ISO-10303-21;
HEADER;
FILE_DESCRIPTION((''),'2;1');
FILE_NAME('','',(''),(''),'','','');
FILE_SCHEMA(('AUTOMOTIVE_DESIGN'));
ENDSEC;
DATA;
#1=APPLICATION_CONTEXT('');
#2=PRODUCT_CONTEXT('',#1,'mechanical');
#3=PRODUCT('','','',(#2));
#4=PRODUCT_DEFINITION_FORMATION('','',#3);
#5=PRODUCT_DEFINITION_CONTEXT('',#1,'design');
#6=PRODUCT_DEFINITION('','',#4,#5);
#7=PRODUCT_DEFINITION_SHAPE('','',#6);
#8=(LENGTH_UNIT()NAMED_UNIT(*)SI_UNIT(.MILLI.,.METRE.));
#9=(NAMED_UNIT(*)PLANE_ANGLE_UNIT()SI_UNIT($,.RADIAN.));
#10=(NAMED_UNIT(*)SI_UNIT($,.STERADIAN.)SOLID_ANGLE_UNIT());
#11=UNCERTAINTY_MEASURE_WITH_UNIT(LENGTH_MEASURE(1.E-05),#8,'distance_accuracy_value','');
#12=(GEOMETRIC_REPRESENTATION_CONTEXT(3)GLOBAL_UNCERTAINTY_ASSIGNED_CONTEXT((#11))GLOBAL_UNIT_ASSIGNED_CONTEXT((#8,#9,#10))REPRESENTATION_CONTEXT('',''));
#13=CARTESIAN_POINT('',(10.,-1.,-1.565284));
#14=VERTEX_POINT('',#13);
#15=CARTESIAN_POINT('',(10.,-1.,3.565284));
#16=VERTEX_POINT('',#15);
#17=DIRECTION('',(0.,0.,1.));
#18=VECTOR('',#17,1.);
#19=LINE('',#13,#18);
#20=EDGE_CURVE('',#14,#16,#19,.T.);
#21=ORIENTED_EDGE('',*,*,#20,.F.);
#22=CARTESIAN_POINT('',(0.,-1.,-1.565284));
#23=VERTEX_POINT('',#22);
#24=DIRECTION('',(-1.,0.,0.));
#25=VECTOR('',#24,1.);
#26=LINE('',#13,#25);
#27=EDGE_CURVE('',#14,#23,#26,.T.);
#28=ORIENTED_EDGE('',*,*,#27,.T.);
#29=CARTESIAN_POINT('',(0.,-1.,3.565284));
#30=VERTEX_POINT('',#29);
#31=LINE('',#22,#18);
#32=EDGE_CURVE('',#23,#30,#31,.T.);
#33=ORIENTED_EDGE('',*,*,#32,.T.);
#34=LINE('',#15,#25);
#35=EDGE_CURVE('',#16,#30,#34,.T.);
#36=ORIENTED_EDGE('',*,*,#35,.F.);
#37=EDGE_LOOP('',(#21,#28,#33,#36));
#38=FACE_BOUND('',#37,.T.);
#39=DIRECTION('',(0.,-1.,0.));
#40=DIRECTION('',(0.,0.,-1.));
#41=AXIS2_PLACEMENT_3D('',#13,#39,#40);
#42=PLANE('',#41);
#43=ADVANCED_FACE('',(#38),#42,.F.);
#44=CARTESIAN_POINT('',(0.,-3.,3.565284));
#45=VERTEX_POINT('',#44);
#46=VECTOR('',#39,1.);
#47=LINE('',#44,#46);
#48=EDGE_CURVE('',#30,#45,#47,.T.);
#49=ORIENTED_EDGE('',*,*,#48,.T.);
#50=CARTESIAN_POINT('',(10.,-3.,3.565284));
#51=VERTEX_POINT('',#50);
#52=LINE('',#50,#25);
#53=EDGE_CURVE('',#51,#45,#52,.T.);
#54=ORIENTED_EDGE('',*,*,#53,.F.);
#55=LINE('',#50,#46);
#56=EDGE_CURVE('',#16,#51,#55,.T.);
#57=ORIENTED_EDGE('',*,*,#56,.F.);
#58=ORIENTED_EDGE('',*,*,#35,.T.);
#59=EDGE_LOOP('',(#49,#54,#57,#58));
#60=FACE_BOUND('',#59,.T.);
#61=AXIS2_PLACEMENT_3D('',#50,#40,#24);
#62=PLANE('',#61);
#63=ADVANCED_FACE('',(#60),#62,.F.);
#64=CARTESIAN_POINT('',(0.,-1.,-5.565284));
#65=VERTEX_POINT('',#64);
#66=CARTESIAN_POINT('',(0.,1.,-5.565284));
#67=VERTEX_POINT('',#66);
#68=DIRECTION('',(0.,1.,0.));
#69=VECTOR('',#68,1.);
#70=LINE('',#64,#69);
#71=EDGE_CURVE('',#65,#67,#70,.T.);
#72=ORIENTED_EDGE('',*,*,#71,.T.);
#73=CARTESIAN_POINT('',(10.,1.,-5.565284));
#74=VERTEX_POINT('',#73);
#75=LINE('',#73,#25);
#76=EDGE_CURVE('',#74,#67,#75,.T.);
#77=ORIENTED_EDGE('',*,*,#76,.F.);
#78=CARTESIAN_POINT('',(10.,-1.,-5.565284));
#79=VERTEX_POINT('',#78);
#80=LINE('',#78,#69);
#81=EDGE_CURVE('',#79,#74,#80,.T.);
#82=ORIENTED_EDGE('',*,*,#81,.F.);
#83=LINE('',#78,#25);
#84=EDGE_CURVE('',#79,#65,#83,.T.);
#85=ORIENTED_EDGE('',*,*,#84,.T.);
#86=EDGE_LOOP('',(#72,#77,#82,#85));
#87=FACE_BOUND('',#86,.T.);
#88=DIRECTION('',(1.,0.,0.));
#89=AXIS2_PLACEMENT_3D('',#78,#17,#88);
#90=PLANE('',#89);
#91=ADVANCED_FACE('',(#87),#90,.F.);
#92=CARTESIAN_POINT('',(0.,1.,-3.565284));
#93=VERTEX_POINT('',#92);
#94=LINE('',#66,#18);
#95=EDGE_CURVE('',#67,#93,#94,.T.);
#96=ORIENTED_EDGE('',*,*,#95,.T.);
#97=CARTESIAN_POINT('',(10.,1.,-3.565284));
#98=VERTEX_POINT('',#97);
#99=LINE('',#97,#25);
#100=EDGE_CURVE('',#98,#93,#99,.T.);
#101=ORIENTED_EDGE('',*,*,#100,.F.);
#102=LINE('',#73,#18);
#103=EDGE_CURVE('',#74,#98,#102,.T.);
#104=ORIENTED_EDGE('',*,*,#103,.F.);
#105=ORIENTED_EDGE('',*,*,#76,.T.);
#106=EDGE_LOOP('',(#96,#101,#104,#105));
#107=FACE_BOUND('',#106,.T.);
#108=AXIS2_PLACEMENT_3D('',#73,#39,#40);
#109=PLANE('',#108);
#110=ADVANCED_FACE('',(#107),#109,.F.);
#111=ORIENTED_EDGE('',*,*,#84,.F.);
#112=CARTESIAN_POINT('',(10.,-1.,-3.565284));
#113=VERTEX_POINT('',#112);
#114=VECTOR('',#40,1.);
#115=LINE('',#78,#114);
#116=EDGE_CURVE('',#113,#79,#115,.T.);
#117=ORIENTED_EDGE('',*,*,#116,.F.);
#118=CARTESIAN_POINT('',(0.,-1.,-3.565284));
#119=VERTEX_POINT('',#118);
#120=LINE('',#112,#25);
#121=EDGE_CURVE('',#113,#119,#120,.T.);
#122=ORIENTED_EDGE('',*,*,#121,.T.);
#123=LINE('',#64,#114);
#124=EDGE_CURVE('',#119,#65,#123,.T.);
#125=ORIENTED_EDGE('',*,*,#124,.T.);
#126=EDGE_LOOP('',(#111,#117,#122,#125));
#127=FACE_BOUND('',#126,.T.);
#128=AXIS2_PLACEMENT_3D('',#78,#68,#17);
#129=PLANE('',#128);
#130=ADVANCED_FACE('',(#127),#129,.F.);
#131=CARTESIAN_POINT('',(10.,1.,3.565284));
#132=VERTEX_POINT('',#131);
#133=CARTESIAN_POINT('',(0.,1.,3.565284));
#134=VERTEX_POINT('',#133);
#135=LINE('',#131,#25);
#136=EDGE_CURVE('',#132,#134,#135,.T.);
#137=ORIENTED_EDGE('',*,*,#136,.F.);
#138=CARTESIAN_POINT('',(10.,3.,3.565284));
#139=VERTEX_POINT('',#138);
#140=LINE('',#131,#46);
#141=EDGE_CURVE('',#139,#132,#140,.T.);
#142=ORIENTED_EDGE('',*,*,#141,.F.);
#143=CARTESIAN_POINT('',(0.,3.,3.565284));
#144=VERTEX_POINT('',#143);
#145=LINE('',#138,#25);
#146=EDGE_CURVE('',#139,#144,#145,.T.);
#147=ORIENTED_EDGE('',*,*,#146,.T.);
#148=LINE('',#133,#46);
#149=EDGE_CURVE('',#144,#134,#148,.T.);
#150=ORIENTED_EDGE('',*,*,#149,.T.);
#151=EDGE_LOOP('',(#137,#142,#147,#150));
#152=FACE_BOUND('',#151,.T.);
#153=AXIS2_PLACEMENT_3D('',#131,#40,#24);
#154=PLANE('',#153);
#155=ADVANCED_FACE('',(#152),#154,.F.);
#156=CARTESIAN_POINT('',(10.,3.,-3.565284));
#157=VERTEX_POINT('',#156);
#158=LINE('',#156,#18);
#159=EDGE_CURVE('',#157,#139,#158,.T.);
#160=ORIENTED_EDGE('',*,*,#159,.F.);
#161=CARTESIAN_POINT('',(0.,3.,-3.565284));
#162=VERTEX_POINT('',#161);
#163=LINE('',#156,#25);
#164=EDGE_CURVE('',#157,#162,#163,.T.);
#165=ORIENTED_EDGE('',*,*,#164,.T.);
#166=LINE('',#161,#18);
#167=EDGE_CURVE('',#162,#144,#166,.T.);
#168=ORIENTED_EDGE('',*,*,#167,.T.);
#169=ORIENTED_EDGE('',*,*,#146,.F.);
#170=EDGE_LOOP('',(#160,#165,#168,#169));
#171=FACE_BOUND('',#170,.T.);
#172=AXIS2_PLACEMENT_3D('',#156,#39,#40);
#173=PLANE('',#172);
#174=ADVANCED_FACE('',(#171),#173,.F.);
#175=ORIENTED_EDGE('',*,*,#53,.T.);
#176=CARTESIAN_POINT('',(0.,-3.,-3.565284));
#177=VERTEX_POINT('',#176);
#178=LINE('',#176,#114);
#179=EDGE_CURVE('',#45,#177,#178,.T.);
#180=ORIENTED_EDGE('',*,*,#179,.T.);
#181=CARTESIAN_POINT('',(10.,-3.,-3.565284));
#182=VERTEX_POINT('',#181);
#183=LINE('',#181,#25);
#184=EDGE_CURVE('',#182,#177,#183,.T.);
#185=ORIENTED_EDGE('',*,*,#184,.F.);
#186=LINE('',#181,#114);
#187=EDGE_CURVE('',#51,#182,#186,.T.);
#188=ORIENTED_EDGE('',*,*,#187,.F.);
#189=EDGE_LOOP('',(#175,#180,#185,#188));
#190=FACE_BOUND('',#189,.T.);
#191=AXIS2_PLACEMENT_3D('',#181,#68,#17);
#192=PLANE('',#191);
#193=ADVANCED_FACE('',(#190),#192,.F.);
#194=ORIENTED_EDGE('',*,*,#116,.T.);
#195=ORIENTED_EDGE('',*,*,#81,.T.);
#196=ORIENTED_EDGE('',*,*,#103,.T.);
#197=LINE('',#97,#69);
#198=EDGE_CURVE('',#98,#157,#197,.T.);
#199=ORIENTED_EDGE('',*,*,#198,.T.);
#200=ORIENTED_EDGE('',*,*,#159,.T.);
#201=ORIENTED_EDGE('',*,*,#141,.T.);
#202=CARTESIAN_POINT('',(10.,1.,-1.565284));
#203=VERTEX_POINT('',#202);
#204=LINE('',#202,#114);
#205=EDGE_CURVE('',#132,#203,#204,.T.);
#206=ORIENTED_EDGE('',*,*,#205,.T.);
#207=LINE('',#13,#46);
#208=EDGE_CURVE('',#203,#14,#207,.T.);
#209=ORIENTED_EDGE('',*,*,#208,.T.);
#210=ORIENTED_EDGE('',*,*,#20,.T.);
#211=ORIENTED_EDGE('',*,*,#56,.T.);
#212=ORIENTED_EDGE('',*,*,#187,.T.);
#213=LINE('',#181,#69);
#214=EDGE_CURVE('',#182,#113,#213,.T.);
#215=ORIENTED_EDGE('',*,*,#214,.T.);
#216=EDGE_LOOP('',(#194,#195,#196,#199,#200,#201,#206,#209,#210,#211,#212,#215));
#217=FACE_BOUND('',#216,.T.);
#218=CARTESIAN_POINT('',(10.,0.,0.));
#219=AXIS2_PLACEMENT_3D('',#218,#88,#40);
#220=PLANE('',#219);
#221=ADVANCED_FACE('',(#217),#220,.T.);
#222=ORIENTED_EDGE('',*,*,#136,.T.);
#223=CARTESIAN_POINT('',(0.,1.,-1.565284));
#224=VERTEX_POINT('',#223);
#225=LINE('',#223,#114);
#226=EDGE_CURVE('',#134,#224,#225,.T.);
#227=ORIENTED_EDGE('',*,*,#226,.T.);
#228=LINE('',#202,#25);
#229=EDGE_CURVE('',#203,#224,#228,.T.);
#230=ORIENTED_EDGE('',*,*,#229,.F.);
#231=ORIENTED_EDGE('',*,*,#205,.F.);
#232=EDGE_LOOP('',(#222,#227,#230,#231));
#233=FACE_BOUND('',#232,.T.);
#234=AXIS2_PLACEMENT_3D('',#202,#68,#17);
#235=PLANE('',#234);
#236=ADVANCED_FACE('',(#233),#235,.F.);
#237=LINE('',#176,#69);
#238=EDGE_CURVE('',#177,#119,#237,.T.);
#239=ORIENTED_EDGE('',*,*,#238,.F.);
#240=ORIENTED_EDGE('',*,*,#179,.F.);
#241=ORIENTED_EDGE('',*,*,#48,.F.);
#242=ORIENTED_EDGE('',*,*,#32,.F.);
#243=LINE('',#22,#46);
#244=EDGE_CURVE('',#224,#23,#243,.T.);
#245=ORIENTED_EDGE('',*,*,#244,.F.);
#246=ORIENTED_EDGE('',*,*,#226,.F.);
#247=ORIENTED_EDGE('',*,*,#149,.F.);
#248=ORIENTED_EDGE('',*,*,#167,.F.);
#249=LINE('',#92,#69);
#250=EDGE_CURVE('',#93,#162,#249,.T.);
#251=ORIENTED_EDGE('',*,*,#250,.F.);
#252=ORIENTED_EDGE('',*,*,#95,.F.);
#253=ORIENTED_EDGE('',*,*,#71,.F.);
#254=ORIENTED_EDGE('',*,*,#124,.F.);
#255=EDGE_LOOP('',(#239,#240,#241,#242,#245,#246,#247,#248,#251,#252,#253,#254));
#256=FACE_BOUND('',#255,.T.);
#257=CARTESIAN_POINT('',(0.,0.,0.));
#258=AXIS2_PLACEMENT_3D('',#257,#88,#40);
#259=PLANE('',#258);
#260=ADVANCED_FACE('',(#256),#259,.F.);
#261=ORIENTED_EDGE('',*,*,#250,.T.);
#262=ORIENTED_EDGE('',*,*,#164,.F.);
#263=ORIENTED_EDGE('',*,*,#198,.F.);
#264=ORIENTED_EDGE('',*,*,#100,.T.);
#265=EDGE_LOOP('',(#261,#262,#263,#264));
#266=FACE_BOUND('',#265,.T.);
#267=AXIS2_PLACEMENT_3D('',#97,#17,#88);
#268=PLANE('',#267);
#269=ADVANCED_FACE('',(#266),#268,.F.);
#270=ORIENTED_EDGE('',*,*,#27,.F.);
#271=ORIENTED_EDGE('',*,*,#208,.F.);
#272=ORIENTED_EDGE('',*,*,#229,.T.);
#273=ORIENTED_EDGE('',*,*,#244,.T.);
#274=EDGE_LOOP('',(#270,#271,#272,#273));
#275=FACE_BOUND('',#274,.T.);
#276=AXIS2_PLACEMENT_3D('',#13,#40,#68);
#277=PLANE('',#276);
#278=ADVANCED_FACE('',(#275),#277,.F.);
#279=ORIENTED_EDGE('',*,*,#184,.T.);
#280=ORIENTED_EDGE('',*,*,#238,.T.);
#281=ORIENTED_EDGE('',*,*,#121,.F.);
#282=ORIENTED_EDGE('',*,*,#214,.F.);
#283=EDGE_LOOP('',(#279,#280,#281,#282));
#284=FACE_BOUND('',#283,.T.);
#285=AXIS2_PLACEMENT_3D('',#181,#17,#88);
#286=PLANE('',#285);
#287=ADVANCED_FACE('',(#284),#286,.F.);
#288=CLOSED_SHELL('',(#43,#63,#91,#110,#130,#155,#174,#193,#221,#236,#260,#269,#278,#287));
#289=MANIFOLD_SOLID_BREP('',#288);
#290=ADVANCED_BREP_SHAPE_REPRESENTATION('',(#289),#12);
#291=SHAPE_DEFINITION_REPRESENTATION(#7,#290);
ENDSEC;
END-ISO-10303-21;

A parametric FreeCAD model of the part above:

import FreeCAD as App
import Part
import Sketcher

V = App.Vector

doc = App.newDocument("Part")
params = doc.addObject("Spreadsheet::Sheet", "Params")
for row, (alias, value) in enumerate([
    ("sketch1_width", "2 mm"),
    ("pad1_length", "10 mm"),
], start=1):
    params.set(f"A{row}", alias)
    params.set(f"B{row}", "=" + value)
    params.setAlias(f"B{row}", alias)

body = doc.addObject("PartDesign::Body", "Body")

sketch1 = body.newObject("Sketcher::SketchObject", "Sketch")
sketch1.AttachmentSupport = (doc.getObject("YZ_Plane"), [""])
sketch1.MapMode = "FlatFace"
sketch1.addGeometry(Part.LineSegment(V(-3, 3.565284, 0), V(-3, -3.565284, 0)), False)
sketch1.addGeometry(Part.LineSegment(V(-3, -3.565284, 0), V(-1, -3.565284, 0)), False)
sketch1.addGeometry(Part.LineSegment(V(-1, -3.565284, 0), V(-1, -5.565284, 0)), False)
sketch1.addGeometry(Part.LineSegment(V(-1, -5.565284, 0), V(1, -5.565284, 0)), False)
sketch1.addGeometry(Part.LineSegment(V(1, -5.565284, 0), V(1, -3.565284, 0)), False)
sketch1.addGeometry(Part.LineSegment(V(1, -3.565284, 0), V(3, -3.565284, 0)), False)
sketch1.addGeometry(Part.LineSegment(V(3, -3.565284, 0), V(3, 3.565284, 0)), False)
sketch1.addGeometry(Part.LineSegment(V(3, 3.565284, 0), V(1, 3.565284, 0)), False)
sketch1.addGeometry(Part.LineSegment(V(1, 3.565284, 0), V(1, -1.565284, 0)), False)
sketch1.addGeometry(Part.LineSegment(V(1, -1.565284, 0), V(-1, -1.565284, 0)), False)
sketch1.addGeometry(Part.LineSegment(V(-1, -1.565284, 0), V(-1, 3.565284, 0)), False)
sketch1.addGeometry(Part.LineSegment(V(-1, 3.565284, 0), V(-3, 3.565284, 0)), False)
sketch1.addConstraint(Sketcher.Constraint("Coincident", 0, 2, 1, 1))
sketch1.addConstraint(Sketcher.Constraint("Coincident", 1, 2, 2, 1))
sketch1.addConstraint(Sketcher.Constraint("Coincident", 2, 2, 3, 1))
sketch1.addConstraint(Sketcher.Constraint("Coincident", 3, 2, 4, 1))
sketch1.addConstraint(Sketcher.Constraint("Coincident", 4, 2, 5, 1))
sketch1.addConstraint(Sketcher.Constraint("Coincident", 5, 2, 6, 1))
sketch1.addConstraint(Sketcher.Constraint("Coincident", 6, 2, 7, 1))
sketch1.addConstraint(Sketcher.Constraint("Coincident", 7, 2, 8, 1))
sketch1.addConstraint(Sketcher.Constraint("Coincident", 8, 2, 9, 1))
sketch1.addConstraint(Sketcher.Constraint("Coincident", 9, 2, 10, 1))
sketch1.addConstraint(Sketcher.Constraint("Coincident", 10, 2, 11, 1))
sketch1.addConstraint(Sketcher.Constraint("Coincident", 11, 2, 0, 1))
sketch1.addConstraint(Sketcher.Constraint("Vertical", 0))
sketch1.addConstraint(Sketcher.Constraint("Horizontal", 1))
sketch1.addConstraint(Sketcher.Constraint("Vertical", 2))
sketch1.addConstraint(Sketcher.Constraint("Horizontal", 3))
sketch1.addConstraint(Sketcher.Constraint("Vertical", 4))
sketch1.addConstraint(Sketcher.Constraint("Horizontal", 5))
sketch1.addConstraint(Sketcher.Constraint("Vertical", 6))
sketch1.addConstraint(Sketcher.Constraint("Horizontal", 7))
sketch1.addConstraint(Sketcher.Constraint("Vertical", 8))
sketch1.addConstraint(Sketcher.Constraint("Horizontal", 9))
sketch1.addConstraint(Sketcher.Constraint("Vertical", 10))
sketch1.addConstraint(Sketcher.Constraint("Horizontal", 11))
sketch1.addConstraint(Sketcher.Constraint("Symmetric", 0, 2, 6, 2, -1, 1))
sketch1.addConstraint(Sketcher.Constraint("Symmetric", 4, 2, 10, 2, -1, 1))
sketch1.addConstraint(Sketcher.Constraint("Symmetric", 1, 2, 4, 2, -2))
sketch1.addConstraint(Sketcher.Constraint("Vertical", 4, 2, 7, 2))
sketch1.addConstraint(Sketcher.Constraint("Equal", 1, 3))
sketch1.addConstraint(Sketcher.Constraint("Equal", 11, 2))
sketch1.addConstraint(Sketcher.Constraint("DistanceX", 1, 1, 1, 2, 2.0))
sketch1.addConstraint(Sketcher.Constraint("DistanceY", 4, 2, 8, 2, 2.0))
sketch1.addConstraint(Sketcher.Constraint("DistanceY", 0, 2, 0, 1, 7.130569))
sketch1.setExpression("Constraints[30]", "Params.sketch1_width")
pad1 = body.newObject("PartDesign::Pad", "Pad")
pad1.Profile = sketch1
pad1.setExpression("Length", "Params.pad1_length")

doc.recompute()
